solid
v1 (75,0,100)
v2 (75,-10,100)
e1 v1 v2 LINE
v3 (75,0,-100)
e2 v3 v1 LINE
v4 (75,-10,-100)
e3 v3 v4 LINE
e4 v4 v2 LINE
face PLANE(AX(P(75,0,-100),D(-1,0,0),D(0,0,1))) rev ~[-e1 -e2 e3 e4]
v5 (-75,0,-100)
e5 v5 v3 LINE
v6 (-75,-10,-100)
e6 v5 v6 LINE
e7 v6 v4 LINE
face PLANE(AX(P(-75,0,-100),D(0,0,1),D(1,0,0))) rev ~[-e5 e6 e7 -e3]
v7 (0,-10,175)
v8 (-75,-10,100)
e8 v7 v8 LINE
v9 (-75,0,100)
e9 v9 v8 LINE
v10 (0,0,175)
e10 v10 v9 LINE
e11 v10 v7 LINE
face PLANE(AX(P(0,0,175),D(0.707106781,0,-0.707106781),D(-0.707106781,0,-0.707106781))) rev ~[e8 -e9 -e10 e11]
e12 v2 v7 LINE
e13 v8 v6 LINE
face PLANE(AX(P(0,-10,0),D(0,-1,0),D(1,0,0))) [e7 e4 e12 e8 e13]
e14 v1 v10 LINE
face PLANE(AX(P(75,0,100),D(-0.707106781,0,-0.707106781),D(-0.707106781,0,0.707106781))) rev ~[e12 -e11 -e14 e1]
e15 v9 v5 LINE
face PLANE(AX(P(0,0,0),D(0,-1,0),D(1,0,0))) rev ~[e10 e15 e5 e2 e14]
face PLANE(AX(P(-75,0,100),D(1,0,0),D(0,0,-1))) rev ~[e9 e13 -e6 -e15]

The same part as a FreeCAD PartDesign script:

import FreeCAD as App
import Part
import Sketcher
Q = App.Units.Quantity


def add_polygon(sketch, points):
    """Adds a closed chain of lines whose ends are joined by coincident constraints."""
    first, n = sketch.GeometryCount, len(points)
    for a, b in zip(points, points[1:] + points[:1]):
        sketch.addGeometry(Part.LineSegment(App.Vector(*a, 0), App.Vector(*b, 0)), False)
    for i in range(n):
        sketch.addConstraint(Sketcher.Constraint("Coincident", first + i, 2, first + (i + 1) % n, 1))

doc = App.newDocument("Part")
body = doc.addObject("PartDesign::Body", "Body")

sketch1 = body.newObject("Sketcher::SketchObject", "Sketch")
sketch1.AttachmentSupport = (doc.getObject("XZ_Plane"), [""])
sketch1.MapMode = "FlatFace"
add_polygon(sketch1, [(75, -100), (75, 100), (0, 175), (-75, 100), (-75, -100)])
sketch1.addConstraint(Sketcher.Constraint("Vertical", 0))
sketch1.addConstraint(Sketcher.Constraint("Vertical", 3))
sketch1.addConstraint(Sketcher.Constraint("Horizontal", 4))
sketch1.addConstraint(Sketcher.Constraint("Symmetric", 0, 2, 3, 2, -1, 1))
sketch1.addConstraint(Sketcher.Constraint("PointOnObject", 1, 2, -2))
sketch1.addConstraint(Sketcher.Constraint("Perpendicular", 1, 2))
sketch1.addConstraint(Sketcher.Constraint("Horizontal", 0, 2, 2, 2))
sketch1.addConstraint(Sketcher.Constraint("DistanceX", 4, 1, 4, 2, Q("150 mm")))
sketch1.addConstraint(Sketcher.Constraint("DistanceY", 0, 1, 0, 2, Q("200 mm")))
pad1 = body.newObject("PartDesign::Pad", "Pad")
pad1.Profile = sketch1
pad1.Length = 10

doc.recompute()
